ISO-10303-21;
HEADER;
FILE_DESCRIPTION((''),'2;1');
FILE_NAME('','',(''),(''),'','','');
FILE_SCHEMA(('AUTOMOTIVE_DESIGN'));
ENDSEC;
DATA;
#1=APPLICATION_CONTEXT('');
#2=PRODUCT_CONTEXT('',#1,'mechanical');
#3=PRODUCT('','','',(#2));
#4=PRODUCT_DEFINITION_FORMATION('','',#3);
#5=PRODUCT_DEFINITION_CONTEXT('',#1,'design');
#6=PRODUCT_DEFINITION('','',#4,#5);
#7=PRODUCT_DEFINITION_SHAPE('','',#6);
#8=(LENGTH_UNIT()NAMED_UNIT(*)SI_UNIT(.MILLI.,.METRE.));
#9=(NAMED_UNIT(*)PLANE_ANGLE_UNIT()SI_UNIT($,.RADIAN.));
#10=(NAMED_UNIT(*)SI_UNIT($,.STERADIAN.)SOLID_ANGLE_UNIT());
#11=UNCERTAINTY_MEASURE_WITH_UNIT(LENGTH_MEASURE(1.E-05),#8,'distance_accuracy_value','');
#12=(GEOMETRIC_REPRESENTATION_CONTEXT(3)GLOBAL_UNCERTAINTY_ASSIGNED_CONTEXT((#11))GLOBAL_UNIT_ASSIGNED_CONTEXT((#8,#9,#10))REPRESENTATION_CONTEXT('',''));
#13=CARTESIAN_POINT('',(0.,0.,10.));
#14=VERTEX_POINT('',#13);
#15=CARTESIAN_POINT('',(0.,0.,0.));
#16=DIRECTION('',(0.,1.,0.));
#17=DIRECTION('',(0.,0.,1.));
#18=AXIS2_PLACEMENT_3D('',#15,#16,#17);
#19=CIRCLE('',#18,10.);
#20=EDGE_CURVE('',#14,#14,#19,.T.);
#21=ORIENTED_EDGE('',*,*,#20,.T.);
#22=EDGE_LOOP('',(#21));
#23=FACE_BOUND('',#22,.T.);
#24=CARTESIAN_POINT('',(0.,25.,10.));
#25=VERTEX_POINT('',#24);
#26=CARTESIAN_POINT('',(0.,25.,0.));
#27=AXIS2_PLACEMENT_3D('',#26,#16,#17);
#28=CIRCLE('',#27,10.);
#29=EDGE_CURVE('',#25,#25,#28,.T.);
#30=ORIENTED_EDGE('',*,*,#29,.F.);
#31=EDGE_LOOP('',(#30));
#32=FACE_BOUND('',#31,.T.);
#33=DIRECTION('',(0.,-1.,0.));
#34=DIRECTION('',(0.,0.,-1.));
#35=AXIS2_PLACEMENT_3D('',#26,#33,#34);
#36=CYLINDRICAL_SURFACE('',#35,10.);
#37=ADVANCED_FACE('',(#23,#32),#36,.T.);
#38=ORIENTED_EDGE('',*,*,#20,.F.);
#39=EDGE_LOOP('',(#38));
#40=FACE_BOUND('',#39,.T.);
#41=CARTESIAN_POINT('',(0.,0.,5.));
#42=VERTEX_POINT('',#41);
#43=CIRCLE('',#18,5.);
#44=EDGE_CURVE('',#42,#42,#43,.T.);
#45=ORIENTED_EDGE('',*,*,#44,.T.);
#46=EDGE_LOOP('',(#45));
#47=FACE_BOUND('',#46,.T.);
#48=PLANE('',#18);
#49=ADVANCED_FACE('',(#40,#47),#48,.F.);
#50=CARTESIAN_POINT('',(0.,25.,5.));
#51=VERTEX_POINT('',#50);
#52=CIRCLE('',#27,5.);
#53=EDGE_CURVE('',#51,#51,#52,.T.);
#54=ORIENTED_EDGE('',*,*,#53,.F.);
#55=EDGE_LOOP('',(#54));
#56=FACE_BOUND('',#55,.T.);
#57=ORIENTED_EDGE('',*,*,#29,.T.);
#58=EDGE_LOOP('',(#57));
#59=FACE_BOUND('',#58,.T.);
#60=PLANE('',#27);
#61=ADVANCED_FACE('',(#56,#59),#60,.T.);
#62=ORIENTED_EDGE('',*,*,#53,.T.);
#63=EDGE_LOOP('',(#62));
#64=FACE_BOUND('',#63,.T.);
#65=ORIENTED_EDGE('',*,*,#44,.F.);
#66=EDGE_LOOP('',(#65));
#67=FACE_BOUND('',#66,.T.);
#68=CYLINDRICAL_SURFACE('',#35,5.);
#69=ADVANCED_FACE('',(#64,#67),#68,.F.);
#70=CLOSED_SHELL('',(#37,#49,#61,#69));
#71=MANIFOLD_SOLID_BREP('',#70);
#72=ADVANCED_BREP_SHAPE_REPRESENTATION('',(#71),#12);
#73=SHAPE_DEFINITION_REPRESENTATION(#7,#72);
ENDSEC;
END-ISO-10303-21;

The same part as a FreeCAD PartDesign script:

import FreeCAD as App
import Part
import Sketcher

doc = App.newDocument("Part")
body = doc.addObject("PartDesign::Body", "Body")

sketch1 = body.newObject("Sketcher::SketchObject", "Sketch")
sketch1.AttachmentSupport = (doc.getObject("XZ_Plane"), [""])
sketch1.MapMode = "FlatFace"
sketch1.addGeometry([
    Part.Circle(App.Vector(0, 0, 0), App.Vector(0, 0, 1), 10),
    Part.Circle(App.Vector(0, 0, 0), App.Vector(0, 0, 1), 5),
], False)
sketch1.addConstraint([
    Sketcher.Constraint("Coincident", 0, 3, -1, 1),
    Sketcher.Constraint("Coincident", 1, 3, -1, 1),
    Sketcher.Constraint("Diameter", 0, 20.0),
    Sketcher.Constraint("Diameter", 1, 10.0),
])
pad1 = body.newObject("PartDesign::Pad", "Pad")
pad1.Profile = sketch1
pad1.Length = 25
pad1.Reversed = True

doc.recompute()
